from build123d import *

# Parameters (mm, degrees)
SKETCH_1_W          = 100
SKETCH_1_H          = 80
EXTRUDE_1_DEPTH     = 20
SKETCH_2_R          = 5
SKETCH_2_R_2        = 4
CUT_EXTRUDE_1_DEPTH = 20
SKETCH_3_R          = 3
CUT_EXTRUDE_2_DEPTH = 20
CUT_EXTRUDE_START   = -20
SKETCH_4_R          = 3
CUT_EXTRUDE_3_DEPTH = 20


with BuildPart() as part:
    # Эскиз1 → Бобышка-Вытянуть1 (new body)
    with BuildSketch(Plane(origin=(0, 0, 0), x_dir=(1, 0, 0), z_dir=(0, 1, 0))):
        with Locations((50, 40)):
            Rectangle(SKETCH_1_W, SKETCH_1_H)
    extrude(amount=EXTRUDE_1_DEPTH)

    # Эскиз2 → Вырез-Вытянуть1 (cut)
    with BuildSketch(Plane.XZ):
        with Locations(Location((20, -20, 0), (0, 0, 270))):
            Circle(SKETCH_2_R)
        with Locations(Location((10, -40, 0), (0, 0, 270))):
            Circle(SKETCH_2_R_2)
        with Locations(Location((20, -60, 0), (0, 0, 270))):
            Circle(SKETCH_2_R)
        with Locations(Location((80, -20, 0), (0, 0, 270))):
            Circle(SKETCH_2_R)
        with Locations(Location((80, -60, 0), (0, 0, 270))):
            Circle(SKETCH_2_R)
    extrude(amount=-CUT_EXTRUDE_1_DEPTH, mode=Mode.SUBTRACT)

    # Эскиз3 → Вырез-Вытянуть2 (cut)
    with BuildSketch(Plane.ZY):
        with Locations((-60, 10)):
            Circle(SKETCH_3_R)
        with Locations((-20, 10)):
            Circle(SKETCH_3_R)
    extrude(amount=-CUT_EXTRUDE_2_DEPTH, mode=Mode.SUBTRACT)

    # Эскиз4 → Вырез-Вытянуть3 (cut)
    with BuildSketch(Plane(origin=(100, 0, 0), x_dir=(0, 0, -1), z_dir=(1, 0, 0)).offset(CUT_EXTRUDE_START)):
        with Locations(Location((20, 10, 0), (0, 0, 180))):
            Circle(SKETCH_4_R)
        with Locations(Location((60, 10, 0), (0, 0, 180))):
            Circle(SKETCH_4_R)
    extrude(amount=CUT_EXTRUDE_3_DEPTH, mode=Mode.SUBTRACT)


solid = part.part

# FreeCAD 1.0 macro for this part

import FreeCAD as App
import Part
import Sketcher
from FreeCAD import Vector


def add_polygon(sketch, points):
    """Adds a closed chain of lines whose ends are joined by coincident constraints."""
    first, n = sketch.GeometryCount, len(points)
    for a, b in zip(points, points[1:] + points[:1]):
        sketch.addGeometry(Part.LineSegment(App.Vector(*a, 0), App.Vector(*b, 0)), False)
    for i in range(n):
        sketch.addConstraint(Sketcher.Constraint("Coincident", first + i, 2, first + (i + 1) % n, 1))

doc = App.newDocument("Part")
body = doc.addObject("PartDesign::Body", "Body")

# Sketch on XZ plane
sketch1 = body.newObject("Sketcher::SketchObject", "Sketch")
sketch1.AttachmentSupport = (doc.getObject("XZ_Plane"), [""])
sketch1.MapMode = "FlatFace"
add_polygon(sketch1, [(0, -80), (0, 0), (100, 0), (100, -80)])  # lines 0-3
sketch1.addConstraint([
    Sketcher.Constraint("Vertical", 0),
    Sketcher.Constraint("Horizontal", 1),
    Sketcher.Constraint("Vertical", 2),
    Sketcher.Constraint("Horizontal", 3),
    Sketcher.Constraint("Coincident", 0, 2, -1, 1),
    Sketcher.Constraint("DistanceX", 1, 1, 1, 2, 100.0),
    Sketcher.Constraint("DistanceY", 0, 1, 0, 2, 80.0),
])
pad1 = body.newObject("PartDesign::Pad", "Pad")
pad1.Profile = sketch1
pad1.Length = 20
pad1.Reversed = True

# Sketch on XZ plane
sketch2 = body.newObject("Sketcher::SketchObject", "Sketch001")
sketch2.AttachmentSupport = (doc.getObject("XZ_Plane"), [""])
sketch2.MapMode = "FlatFace"
sketch2.addGeometry([
    Part.Circle(Vector(20, -20, 0), Vector(0, 0, 1), 5),  # 0
    Part.Circle(Vector(10, -40, 0), Vector(0, 0, 1), 4),  # 1
    Part.Circle(Vector(20, -60, 0), Vector(0, 0, 1), 5),  # 2
    Part.Circle(Vector(80, -20, 0), Vector(0, 0, 1), 5),  # 3
    Part.Circle(Vector(80, -60, 0), Vector(0, 0, 1), 5),  # 4
], False)
sketch2.addConstraint([
    Sketcher.Constraint("Equal", 0, 2),
    Sketcher.Constraint("Equal", 2, 3),
    Sketcher.Constraint("Equal", 3, 4),
    Sketcher.Constraint("Horizontal", 0, 3, 3, 3),
    Sketcher.Constraint("Horizontal", 2, 3, 4, 3),
    Sketcher.Constraint("Vertical", 0, 3, 2, 3),
    Sketcher.Constraint("Vertical", 3, 3, 4, 3),
    Sketcher.Constraint("Diameter", 0, 10.0),
    Sketcher.Constraint("Diameter", 1, 8.0),
    Sketcher.Constraint("DistanceX", -1, 1, 0, 3, 20.0),
    Sketcher.Constraint("DistanceY", 0, 3, -1, 1, 20.0),
    Sketcher.Constraint("DistanceX", -1, 1, 1, 3, 10.0),
    Sketcher.Constraint("DistanceY", 1, 3, -1, 1, 40.0),
    Sketcher.Constraint("DistanceY", 2, 3, -1, 1, 60.0),
    Sketcher.Constraint("DistanceX", -1, 1, 3, 3, 80.0),
])
pocket1 = body.newObject("PartDesign::Pocket", "Pocket")
pocket1.Profile = sketch2
pocket1.Length = 20

# Sketch on YZ plane
sketch3 = body.newObject("Sketcher::SketchObject", "Sketch002")
sketch3.AttachmentSupport = (doc.getObject("YZ_Plane"), [""])
sketch3.MapMode = "FlatFace"
sketch3.addGeometry([
    Part.Circle(Vector(10, -60, 0), Vector(0, 0, 1), 3),
    Part.Circle(Vector(10, -20, 0), Vector(0, 0, 1), 3),
], False)
sketch3.addConstraint([
    Sketcher.Constraint("Equal", 0, 1),
    Sketcher.Constraint("Vertical", 0, 3, 1, 3),
    Sketcher.Constraint("Diameter", 0, 6.0),
    Sketcher.Constraint("DistanceX", -1, 1, 0, 3, 10.0),
    Sketcher.Constraint("DistanceY", 0, 3, -1, 1, 60.0),
    Sketcher.Constraint("DistanceY", 1, 3, -1, 1, 20.0),
])
pocket2 = body.newObject("PartDesign::Pocket", "Pocket001")
pocket2.Profile = sketch3
pocket2.Length = 20
pocket2.Reversed = True

# Sketch on YZ plane
sketch4 = body.newObject("Sketcher::SketchObject", "Sketch003")
sketch4.AttachmentSupport = (doc.getObject("YZ_Plane"), [""])
sketch4.MapMode = "FlatFace"
sketch4.AttachmentOffset = App.Placement(Vector(0, 0, 80), App.Rotation())
sketch4.addGeometry([
    Part.Circle(Vector(10, -20, 0), Vector(0, 0, 1), 3),
    Part.Circle(Vector(10, -60, 0), Vector(0, 0, 1), 3),
], False)
sketch4.addConstraint([
    Sketcher.Constraint("Equal", 0, 1),
    Sketcher.Constraint("Vertical", 0, 3, 1, 3),
    Sketcher.Constraint("Diameter", 0, 6.0),
    Sketcher.Constraint("DistanceX", -1, 1, 0, 3, 10.0),
    Sketcher.Constraint("DistanceY", 0, 3, -1, 1, 20.0),
    Sketcher.Constraint("DistanceY", 1, 3, -1, 1, 60.0),
])
pocket3 = body.newObject("PartDesign::Pocket", "Pocket002")
pocket3.Profile = sketch4
pocket3.Length = 20
pocket3.Reversed = True

doc.recompute()
